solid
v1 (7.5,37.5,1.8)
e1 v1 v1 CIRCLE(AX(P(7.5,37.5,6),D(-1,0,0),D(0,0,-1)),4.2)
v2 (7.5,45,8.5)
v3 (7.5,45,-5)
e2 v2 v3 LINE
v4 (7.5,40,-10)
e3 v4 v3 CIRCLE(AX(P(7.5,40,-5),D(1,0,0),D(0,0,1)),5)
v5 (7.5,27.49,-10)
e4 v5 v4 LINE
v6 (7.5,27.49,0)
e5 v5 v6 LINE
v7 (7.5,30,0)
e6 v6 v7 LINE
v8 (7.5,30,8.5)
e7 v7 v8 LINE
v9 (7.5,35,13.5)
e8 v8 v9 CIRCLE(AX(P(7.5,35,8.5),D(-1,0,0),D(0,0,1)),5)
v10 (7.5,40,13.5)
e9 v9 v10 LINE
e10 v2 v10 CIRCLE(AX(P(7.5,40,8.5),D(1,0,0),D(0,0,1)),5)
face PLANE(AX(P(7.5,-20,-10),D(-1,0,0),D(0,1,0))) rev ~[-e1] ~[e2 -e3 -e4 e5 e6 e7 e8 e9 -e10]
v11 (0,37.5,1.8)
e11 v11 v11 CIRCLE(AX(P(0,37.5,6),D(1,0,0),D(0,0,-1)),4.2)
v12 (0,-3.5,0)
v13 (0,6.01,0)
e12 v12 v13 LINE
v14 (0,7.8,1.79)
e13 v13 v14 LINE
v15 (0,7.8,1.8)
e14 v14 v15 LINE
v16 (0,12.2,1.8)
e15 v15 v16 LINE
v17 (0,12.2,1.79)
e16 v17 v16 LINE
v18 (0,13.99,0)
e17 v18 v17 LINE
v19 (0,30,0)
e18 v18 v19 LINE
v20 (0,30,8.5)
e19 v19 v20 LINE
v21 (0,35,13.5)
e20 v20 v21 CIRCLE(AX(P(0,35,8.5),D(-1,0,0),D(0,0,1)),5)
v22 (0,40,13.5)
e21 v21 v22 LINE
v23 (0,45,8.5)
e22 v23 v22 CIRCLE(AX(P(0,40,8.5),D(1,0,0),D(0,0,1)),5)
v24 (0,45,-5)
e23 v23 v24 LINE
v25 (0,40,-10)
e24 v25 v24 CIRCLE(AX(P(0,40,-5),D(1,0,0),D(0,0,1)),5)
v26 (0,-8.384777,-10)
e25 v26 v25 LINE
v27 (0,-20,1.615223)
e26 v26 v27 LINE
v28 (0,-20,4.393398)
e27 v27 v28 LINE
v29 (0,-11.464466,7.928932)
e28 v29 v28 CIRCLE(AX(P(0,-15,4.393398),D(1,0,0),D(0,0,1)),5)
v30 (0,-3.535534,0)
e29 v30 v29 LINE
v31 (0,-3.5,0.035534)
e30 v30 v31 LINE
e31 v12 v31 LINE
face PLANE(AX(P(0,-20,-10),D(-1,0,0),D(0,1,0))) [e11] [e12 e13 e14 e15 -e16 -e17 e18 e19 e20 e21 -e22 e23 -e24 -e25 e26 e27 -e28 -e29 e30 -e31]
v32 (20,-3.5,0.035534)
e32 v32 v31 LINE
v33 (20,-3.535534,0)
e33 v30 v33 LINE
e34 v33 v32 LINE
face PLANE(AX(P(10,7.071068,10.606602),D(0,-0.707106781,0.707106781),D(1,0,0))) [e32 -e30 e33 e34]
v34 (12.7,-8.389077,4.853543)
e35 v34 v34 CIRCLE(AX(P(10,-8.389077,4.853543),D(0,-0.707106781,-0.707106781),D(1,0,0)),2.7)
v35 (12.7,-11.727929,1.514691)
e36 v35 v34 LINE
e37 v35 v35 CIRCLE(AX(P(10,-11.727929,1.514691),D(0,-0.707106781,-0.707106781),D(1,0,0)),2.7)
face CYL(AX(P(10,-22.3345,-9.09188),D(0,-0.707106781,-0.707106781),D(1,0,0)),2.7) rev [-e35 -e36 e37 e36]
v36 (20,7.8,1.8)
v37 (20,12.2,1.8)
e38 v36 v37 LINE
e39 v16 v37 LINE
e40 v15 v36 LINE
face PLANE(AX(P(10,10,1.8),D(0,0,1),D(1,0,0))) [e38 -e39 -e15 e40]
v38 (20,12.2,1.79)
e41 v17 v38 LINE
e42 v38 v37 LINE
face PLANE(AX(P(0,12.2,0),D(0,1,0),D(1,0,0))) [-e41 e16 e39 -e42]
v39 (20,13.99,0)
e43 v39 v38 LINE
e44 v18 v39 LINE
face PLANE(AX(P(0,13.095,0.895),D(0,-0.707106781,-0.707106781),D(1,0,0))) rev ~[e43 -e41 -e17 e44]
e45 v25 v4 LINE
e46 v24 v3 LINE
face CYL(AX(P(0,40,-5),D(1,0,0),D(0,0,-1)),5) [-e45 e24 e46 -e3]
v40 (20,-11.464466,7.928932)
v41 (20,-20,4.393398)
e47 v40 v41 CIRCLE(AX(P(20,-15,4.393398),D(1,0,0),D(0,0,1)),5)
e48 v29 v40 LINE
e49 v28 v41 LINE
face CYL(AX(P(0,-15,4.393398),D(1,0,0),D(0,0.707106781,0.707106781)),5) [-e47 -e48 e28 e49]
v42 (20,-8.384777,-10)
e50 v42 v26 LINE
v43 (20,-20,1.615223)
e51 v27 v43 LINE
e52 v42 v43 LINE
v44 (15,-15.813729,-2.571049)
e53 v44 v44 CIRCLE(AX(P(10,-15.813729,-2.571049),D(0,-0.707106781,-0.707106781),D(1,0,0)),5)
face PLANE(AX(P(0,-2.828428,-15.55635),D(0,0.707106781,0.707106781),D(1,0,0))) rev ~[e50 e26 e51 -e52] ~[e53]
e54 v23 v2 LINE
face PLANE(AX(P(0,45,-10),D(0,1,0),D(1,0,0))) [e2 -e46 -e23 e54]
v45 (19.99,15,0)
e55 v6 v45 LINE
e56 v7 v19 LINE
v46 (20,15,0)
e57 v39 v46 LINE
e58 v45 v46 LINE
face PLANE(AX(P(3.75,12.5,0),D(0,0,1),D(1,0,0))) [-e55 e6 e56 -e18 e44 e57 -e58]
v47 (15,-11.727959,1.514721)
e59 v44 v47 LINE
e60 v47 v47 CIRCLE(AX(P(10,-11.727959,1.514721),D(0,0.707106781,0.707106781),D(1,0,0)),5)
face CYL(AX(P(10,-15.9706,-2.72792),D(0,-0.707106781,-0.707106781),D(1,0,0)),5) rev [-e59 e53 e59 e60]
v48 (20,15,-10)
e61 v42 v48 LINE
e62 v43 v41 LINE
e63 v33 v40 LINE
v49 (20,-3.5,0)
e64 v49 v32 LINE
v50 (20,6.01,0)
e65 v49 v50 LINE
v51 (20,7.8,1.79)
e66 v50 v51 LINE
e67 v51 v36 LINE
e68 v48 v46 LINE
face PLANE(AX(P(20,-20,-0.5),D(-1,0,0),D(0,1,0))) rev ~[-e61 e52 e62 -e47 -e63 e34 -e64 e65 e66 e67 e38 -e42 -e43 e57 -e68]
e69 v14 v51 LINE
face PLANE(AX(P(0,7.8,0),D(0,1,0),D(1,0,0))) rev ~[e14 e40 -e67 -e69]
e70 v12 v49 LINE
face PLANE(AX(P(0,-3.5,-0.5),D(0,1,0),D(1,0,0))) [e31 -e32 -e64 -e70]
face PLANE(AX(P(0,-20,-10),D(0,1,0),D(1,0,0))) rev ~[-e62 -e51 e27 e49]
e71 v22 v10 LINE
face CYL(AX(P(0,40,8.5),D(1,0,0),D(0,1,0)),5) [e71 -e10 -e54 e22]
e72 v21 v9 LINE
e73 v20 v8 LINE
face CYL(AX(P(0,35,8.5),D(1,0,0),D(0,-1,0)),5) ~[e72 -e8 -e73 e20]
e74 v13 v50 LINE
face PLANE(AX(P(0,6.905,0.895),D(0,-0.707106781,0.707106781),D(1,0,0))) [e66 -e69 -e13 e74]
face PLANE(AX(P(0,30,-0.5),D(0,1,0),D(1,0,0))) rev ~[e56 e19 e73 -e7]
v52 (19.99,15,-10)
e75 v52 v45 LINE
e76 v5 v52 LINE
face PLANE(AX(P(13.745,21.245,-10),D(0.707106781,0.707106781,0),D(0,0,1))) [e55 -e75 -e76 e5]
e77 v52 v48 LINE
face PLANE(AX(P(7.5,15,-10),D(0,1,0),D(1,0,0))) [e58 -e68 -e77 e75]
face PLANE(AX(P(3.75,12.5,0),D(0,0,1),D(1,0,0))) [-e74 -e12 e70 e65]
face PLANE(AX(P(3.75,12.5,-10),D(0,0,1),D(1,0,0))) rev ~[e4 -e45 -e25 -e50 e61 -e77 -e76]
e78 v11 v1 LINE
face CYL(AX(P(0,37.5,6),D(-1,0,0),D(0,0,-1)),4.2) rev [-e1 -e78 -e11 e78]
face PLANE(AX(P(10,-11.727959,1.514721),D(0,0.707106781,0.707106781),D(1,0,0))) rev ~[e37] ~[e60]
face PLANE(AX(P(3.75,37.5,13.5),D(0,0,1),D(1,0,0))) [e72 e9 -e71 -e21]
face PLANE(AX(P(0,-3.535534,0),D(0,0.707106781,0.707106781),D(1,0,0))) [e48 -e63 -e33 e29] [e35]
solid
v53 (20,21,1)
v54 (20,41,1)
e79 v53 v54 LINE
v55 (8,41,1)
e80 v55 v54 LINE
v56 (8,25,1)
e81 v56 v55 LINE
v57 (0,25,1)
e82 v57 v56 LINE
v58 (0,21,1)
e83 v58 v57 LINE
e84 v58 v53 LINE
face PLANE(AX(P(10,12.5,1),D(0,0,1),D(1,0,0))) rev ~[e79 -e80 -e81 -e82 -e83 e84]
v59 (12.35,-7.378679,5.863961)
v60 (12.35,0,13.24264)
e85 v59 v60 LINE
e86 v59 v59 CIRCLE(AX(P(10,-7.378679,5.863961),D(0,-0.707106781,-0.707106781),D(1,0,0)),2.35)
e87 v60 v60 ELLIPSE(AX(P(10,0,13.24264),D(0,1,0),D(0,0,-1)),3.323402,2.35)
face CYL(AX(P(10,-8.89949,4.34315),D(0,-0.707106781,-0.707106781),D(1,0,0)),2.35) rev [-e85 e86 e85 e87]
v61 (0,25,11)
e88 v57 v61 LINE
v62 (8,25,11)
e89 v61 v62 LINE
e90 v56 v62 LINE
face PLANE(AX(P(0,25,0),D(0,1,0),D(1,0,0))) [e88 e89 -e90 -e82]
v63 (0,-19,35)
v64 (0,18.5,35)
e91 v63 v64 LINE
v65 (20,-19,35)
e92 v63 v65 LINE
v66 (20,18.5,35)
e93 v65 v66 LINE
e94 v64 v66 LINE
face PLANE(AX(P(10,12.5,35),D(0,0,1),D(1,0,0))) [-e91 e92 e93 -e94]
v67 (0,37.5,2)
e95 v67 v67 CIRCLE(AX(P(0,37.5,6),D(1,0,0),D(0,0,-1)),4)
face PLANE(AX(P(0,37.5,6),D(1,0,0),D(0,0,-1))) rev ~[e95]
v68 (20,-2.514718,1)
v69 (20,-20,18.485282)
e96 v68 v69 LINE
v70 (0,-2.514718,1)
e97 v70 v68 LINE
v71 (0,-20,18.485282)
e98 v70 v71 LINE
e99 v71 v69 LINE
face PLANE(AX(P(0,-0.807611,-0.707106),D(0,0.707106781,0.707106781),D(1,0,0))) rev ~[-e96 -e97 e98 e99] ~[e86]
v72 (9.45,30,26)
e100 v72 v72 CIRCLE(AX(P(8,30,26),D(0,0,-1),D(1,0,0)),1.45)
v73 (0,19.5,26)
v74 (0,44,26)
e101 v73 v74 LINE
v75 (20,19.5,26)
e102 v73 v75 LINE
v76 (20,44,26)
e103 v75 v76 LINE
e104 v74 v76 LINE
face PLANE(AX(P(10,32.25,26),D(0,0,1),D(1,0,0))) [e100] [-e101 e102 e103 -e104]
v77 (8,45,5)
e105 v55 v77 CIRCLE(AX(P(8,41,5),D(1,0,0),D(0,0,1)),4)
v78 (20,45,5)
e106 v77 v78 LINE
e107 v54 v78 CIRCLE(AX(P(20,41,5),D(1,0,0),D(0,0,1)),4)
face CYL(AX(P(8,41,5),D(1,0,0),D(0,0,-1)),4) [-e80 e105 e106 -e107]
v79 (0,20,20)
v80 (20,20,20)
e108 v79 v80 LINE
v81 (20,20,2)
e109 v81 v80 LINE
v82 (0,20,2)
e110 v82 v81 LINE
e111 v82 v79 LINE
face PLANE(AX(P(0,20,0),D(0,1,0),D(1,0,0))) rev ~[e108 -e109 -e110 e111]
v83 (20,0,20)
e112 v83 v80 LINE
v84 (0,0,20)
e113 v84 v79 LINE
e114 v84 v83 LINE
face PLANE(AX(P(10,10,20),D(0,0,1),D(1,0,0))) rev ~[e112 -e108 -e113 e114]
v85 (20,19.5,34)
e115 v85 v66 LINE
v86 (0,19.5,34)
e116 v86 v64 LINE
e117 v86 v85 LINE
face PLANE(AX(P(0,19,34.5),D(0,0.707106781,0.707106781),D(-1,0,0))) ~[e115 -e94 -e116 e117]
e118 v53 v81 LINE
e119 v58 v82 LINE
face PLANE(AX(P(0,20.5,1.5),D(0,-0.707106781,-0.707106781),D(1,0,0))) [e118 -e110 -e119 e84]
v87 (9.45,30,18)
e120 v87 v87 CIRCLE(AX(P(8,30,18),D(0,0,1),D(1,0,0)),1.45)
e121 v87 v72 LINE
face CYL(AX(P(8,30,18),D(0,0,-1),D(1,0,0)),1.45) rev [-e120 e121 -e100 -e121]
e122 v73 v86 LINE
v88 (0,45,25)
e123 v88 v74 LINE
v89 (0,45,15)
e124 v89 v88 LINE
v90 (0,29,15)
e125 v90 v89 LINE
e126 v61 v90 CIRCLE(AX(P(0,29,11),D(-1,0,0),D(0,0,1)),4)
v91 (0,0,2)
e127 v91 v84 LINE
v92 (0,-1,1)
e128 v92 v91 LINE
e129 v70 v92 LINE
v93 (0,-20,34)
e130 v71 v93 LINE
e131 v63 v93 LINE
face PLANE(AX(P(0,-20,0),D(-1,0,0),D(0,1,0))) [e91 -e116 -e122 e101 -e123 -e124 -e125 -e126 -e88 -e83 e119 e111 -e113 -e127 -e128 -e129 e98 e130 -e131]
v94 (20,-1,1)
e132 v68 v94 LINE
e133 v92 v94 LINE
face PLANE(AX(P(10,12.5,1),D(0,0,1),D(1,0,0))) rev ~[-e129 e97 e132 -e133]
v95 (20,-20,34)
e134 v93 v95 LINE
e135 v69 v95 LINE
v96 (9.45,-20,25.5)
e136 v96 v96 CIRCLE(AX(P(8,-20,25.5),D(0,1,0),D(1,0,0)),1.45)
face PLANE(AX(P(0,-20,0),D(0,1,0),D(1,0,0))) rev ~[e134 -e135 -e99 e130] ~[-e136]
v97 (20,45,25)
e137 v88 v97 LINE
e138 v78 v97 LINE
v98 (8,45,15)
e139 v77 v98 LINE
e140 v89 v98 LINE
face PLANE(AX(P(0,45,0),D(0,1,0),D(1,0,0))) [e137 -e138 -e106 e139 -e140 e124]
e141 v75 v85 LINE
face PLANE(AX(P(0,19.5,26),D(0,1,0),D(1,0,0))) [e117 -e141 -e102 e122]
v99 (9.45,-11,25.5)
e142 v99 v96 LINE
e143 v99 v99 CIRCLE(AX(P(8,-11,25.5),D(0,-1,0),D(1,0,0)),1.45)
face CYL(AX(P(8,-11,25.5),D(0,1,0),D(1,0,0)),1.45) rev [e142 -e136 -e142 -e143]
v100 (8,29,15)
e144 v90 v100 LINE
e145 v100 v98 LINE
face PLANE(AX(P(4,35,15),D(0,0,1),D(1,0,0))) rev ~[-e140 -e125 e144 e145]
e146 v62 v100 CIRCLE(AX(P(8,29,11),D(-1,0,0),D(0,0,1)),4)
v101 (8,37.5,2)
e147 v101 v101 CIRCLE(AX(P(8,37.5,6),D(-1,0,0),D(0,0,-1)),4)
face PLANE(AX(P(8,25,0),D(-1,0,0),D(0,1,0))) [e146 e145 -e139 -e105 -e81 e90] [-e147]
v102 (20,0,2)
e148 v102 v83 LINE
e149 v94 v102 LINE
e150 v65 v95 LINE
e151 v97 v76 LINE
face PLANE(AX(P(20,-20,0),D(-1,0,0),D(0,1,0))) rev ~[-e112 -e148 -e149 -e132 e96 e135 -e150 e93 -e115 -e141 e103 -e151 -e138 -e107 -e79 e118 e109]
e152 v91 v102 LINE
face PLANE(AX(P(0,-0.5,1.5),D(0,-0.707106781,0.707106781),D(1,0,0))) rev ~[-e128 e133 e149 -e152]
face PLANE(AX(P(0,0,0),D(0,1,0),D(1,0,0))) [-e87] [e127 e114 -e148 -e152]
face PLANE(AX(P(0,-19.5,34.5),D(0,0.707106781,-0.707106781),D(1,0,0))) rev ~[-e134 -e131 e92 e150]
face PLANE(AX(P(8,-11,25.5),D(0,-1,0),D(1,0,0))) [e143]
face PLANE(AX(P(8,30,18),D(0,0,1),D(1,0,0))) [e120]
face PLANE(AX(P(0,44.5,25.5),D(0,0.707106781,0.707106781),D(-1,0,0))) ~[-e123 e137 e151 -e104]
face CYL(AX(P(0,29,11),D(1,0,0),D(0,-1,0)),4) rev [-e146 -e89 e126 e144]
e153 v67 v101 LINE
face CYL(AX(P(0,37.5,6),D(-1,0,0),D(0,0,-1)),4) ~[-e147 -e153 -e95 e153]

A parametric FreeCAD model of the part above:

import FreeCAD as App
import Part
import Sketcher
from FreeCAD import Vector
Q = App.Units.Quantity


def edges_at(feature, points):
    """Names of the edges that pass closest to the given points."""
    edges = feature.Shape.Edges
    near = lambda p: min(range(len(edges)), key=lambda i: edges[i].distToShape(Part.Vertex(*p))[0])
    return sorted({f"Edge{near(p) + 1}" for p in points})

doc = App.newDocument("Part")
body = doc.addObject("PartDesign::Body", "Body")

sketch1 = body.newObject("Sketcher::SketchObject", "Sketch")
sketch1.AttachmentSupport = (doc.getObject("XY_Plane"), [""])
sketch1.MapMode = "FlatFace"
sketch1.addGeometry([
    Part.LineSegment(Vector(0, 45, 0), Vector(0, -20, 0)),
    Part.LineSegment(Vector(0, -20, 0), Vector(20, -20, 0)),
    Part.LineSegment(Vector(20, -20, 0), Vector(20, 45, 0)),
    Part.LineSegment(Vector(20, 45, 0), Vector(0, 45, 0)),
], False)
sketch1.addConstraint([
    Sketcher.Constraint("Coincident", 0, 2, 1, 1),
    Sketcher.Constraint("Coincident", 1, 2, 2, 1),
    Sketcher.Constraint("Coincident", 2, 2, 3, 1),
    Sketcher.Constraint("Coincident", 3, 2, 0, 1),
    Sketcher.Constraint("Vertical", 0),
    Sketcher.Constraint("Horizontal", 1),
    Sketcher.Constraint("Vertical", 2),
    Sketcher.Constraint("Horizontal", 3),
    Sketcher.Constraint("PointOnObject", 0, 2, -2),
    Sketcher.Constraint("DistanceX", 1, 1, 1, 2, Q("20 mm")),
    Sketcher.Constraint("DistanceY", 0, 2, 0, 1, Q("65 mm")),
    Sketcher.Constraint("DistanceY", 0, 2, -1, 1, Q("20 mm")),
])
pad1 = body.newObject("PartDesign::Pad", "Pad")
pad1.Profile = sketch1
pad1.Length = 1
body2 = doc.addObject("PartDesign::Body", "Body001")

sketch2 = body2.newObject("Sketcher::SketchObject", "Sketch001")
sketch2.AttachmentSupport = (doc.getObject("YZ_Plane001"), [""])
sketch2.MapMode = "FlatFace"
sketch2.addGeometry(Part.Circle(Vector(37.5, 6, 0), Vector(0, 0, 1), 4), False)
sketch2.addConstraint([
    Sketcher.Constraint("Diameter", 0, Q("8 mm")),
    Sketcher.Constraint("DistanceY", -1, 1, 0, 3, Q("6 mm")),
    Sketcher.Constraint("DistanceX", -1, 1, 0, 3, Q("37.5 mm")),
])
pad2 = body2.newObject("PartDesign::Pad", "Pad001")
pad2.Profile = sketch2
pad2.Length = 10
body3 = doc.addObject("PartDesign::Body", "Body002")

sketch3 = body3.newObject("Sketcher::SketchObject", "Sketch002")
sketch3.AttachmentSupport = (doc.getObject("XZ_Plane002"), [""])
sketch3.MapMode = "FlatFace"
sketch3.AttachmentOffset = App.Placement(Vector(0, 0, 11), App.Rotation())
sketch3.addGeometry(Part.Circle(Vector(8, 25.5, 0), Vector(0, 0, 1), 1.4), False)
sketch3.addConstraint([
    Sketcher.Constraint("Diameter", 0, Q("2.9 mm")),
    Sketcher.Constraint("DistanceX", -1, 1, 0, 3, Q("8 mm")),
    Sketcher.Constraint("DistanceY", -1, 1, 0, 3, Q("25.5 mm")),
])
pad3 = body3.newObject("PartDesign::Pad", "Pad002")
pad3.Profile = sketch3
pad3.Length = 10
body4 = doc.addObject("PartDesign::Body", "Body003")

sketch4 = body4.newObject("Sketcher::SketchObject", "Sketch003")
sketch4.AttachmentSupport = (doc.getObject("XY_Plane003"), [""])
sketch4.MapMode = "FlatFace"
sketch4.addGeometry(Part.Circle(Vector(0, 0, 0), Vector(0, 0, 1), 2.4), False)
sketch4.addConstraint([
    Sketcher.Constraint("Coincident", 0, 3, -1, 1),
    Sketcher.Constraint("Diameter", 0, Q("4.7 mm")),
])
pad4 = body4.newObject("PartDesign::Pad", "Pad003")
pad4.Profile = sketch4
pad4.Length = 15
body5 = doc.addObject("PartDesign::Body", "Body004")
doc.recompute()

body4.Placement = App.Placement(Vector(10, -8.89949, 4.34315), App.Rotation(Vector(-1, 0, 0), 45))
boolean = body5.newObject("PartDesign::Boolean", "Boolean")
boolean.Type = "Fuse"
boolean.addObjects([body4])
body6 = doc.addObject("PartDesign::Body", "Body005")
body6.AllowCompound = True

sketch5 = body6.newObject("Sketcher::SketchObject", "Sketch004")
sketch5.AttachmentSupport = (doc.getObject("XY_Plane005"), [""])
sketch5.MapMode = "FlatFace"
sketch5.AttachmentOffset = App.Placement(Vector(0, 0, 18), App.Rotation())
sketch5.addGeometry(Part.Circle(Vector(8, 30, 0), Vector(0, 0, 1), 1.4), False)
sketch5.addConstraint([
    Sketcher.Constraint("Diameter", 0, Q("2.9 mm")),
    Sketcher.Constraint("DistanceX", -1, 1, 0, 3, Q("8 mm")),
    Sketcher.Constraint("DistanceY", -1, 1, 0, 3, Q("30 mm")),
])
pad5 = body6.newObject("PartDesign::Pad", "Pad004")
pad5.Profile = sketch5
pad5.Length = 10
doc.recompute()

boolean2 = body6.newObject("PartDesign::Boolean", "Boolean001")
boolean2.Type = "Fuse"
boolean2.addObjects([body3])
doc.recompute()

boolean3 = body6.newObject("PartDesign::Boolean", "Boolean002")
boolean3.Type = "Fuse"
boolean3.addObjects([body5])
body7 = doc.addObject("PartDesign::Body", "Body006")

sketch6 = body7.newObject("Sketcher::SketchObject", "Sketch005")
sketch6.AttachmentSupport = (doc.getObject("XY_Plane006"), [""])
sketch6.MapMode = "FlatFace"
sketch6.addGeometry([
    Part.LineSegment(Vector(0, 45, 0), Vector(0, 25, 0)),
    Part.LineSegment(Vector(0, 25, 0), Vector(8, 25, 0)),
    Part.LineSegment(Vector(8, 25, 0), Vector(8, 45, 0)),
    Part.LineSegment(Vector(8, 45, 0), Vector(0, 45, 0)),
], False)
sketch6.addConstraint([
    Sketcher.Constraint("Coincident", 0, 2, 1, 1),
    Sketcher.Constraint("Coincident", 1, 2, 2, 1),
    Sketcher.Constraint("Coincident", 2, 2, 3, 1),
    Sketcher.Constraint("Coincident", 3, 2, 0, 1),
    Sketcher.Constraint("Vertical", 0),
    Sketcher.Constraint("Horizontal", 1),
    Sketcher.Constraint("Vertical", 2),
    Sketcher.Constraint("Horizontal", 3),
    Sketcher.Constraint("PointOnObject", 0, 2, -2),
    Sketcher.Constraint("DistanceX", 1, 1, 1, 2, Q("8 mm")),
    Sketcher.Constraint("DistanceY", 0, 2, 0, 1, Q("20 mm")),
    Sketcher.Constraint("DistanceY", -1, 1, 0, 2, Q("25 mm")),
])
pad6 = body7.newObject("PartDesign::Pad", "Pad005")
pad6.Profile = sketch6
pad6.Length = 15
body8 = doc.addObject("PartDesign::Body", "Body007")

sketch7 = body8.newObject("Sketcher::SketchObject", "Sketch006")
sketch7.AttachmentSupport = (doc.getObject("XY_Plane007"), [""])
sketch7.MapMode = "FlatFace"
sketch7.AttachmentOffset = App.Placement(Vector(0, 0, 26), App.Rotation())
sketch7.addGeometry([
    Part.LineSegment(Vector(0, 45, 0), Vector(0, 20, 0)),
    Part.LineSegment(Vector(0, 20, 0), Vector(20, 20, 0)),
    Part.LineSegment(Vector(20, 20, 0), Vector(20, 45, 0)),
    Part.LineSegment(Vector(20, 45, 0), Vector(0, 45, 0)),
], False)
sketch7.addConstraint([
    Sketcher.Constraint("Coincident", 0, 2, 1, 1),
    Sketcher.Constraint("Coincident", 1, 2, 2, 1),
    Sketcher.Constraint("Coincident", 2, 2, 3, 1),
    Sketcher.Constraint("Coincident", 3, 2, 0, 1),
    Sketcher.Constraint("Vertical", 0),
    Sketcher.Constraint("Horizontal", 1),
    Sketcher.Constraint("Vertical", 2),
    Sketcher.Constraint("Horizontal", 3),
    Sketcher.Constraint("PointOnObject", 0, 2, -2),
    Sketcher.Constraint("DistanceX", 1, 1, 1, 2, Q("20 mm")),
    Sketcher.Constraint("DistanceY", 0, 2, 0, 1, Q("25.5 mm")),
    Sketcher.Constraint("DistanceY", -1, 1, 2, 2, Q("45 mm")),
])
pad7 = body8.newObject("PartDesign::Pad", "Pad006")
pad7.Profile = sketch7
pad7.Length = 9
body9 = doc.addObject("PartDesign::Body", "Body008")

sketch8 = body9.newObject("Sketcher::SketchObject", "Sketch007")
sketch8.AttachmentSupport = (doc.getObject("XY_Plane008"), [""])
sketch8.MapMode = "FlatFace"
sketch8.addGeometry([
    Part.LineSegment(Vector(0, 25, 0), Vector(0, 0, 0)),
    Part.LineSegment(Vector(0, 0, 0), Vector(20, 0, 0)),
    Part.LineSegment(Vector(20, 0, 0), Vector(20, 25, 0)),
    Part.LineSegment(Vector(20, 25, 0), Vector(0, 25, 0)),
], False)
sketch8.addConstraint([
    Sketcher.Constraint("Coincident", 0, 2, 1, 1),
    Sketcher.Constraint("Coincident", 1, 2, 2, 1),
    Sketcher.Constraint("Coincident", 2, 2, 3, 1),
    Sketcher.Constraint("Coincident", 3, 2, 0, 1),
    Sketcher.Constraint("Vertical", 0),
    Sketcher.Constraint("Horizontal", 1),
    Sketcher.Constraint("Vertical", 2),
    Sketcher.Constraint("Horizontal", 3),
    Sketcher.Constraint("Coincident", 0, 2, -1, 1),
    Sketcher.Constraint("DistanceX", 1, 1, 1, 2, Q("20 mm")),
    Sketcher.Constraint("DistanceY", 0, 2, 0, 1, Q("25 mm")),
])
pad8 = body9.newObject("PartDesign::Pad", "Pad007")
pad8.Profile = sketch8
pad8.Length = 50
body10 = doc.addObject("PartDesign::Body", "Body009")
doc.recompute()

body9.Placement = App.Placement(Vector(0, -18.485281, -18.384776), App.Rotation(Vector(1, 0, 0), 45))
boolean4 = body10.newObject("PartDesign::Boolean", "Boolean003")
boolean4.Type = "Fuse"
boolean4.addObjects([body9])
body11 = doc.addObject("PartDesign::Body", "Body010")
body11.AllowCompound = True

sketch9 = body11.newObject("Sketcher::SketchObject", "Sketch008")
sketch9.AttachmentSupport = (doc.getObject("XY_Plane010"), [""])
sketch9.MapMode = "FlatFace"
sketch9.addGeometry([
    Part.LineSegment(Vector(0, 20, 0), Vector(0, 0, 0)),
    Part.LineSegment(Vector(0, 0, 0), Vector(20, 0, 0)),
    Part.LineSegment(Vector(20, 0, 0), Vector(20, 20, 0)),
    Part.LineSegment(Vector(20, 20, 0), Vector(0, 20, 0)),
], False)
sketch9.addConstraint([
    Sketcher.Constraint("Coincident", 0, 2, 1, 1),
    Sketcher.Constraint("Coincident", 1, 2, 2, 1),
    Sketcher.Constraint("Coincident", 2, 2, 3, 1),
    Sketcher.Constraint("Coincident", 3, 2, 0, 1),
    Sketcher.Constraint("Vertical", 0),
    Sketcher.Constraint("Horizontal", 1),
    Sketcher.Constraint("Vertical", 2),
    Sketcher.Constraint("Horizontal", 3),
    Sketcher.Constraint("Coincident", 0, 2, -1, 1),
    Sketcher.Constraint("Equal", 3, 0),
    Sketcher.Constraint("DistanceX", 1, 1, 1, 2, Q("20 mm")),
])
pad9 = body11.newObject("PartDesign::Pad", "Pad008")
pad9.Profile = sketch9
pad9.Length = 20
doc.recompute()

boolean5 = body11.newObject("PartDesign::Boolean", "Boolean004")
boolean5.Type = "Fuse"
boolean5.addObjects([body8])
doc.recompute()

boolean6 = body11.newObject("PartDesign::Boolean", "Boolean005")
boolean6.Type = "Fuse"
boolean6.addObjects([body10])
body12 = doc.addObject("PartDesign::Body", "Body011")

sketch10 = body12.newObject("Sketcher::SketchObject", "Sketch009")
sketch10.AttachmentSupport = (doc.getObject("XY_Plane011"), [""])
sketch10.MapMode = "FlatFace"
sketch10.addGeometry([
    Part.LineSegment(Vector(0, 45, 0), Vector(0, -20, 0)),
    Part.LineSegment(Vector(0, -20, 0), Vector(20, -20, 0)),
    Part.LineSegment(Vector(20, -20, 0), Vector(20, 45, 0)),
    Part.LineSegment(Vector(20, 45, 0), Vector(0, 45, 0)),
], False)
sketch10.addConstraint([
    Sketcher.Constraint("Coincident", 0, 2, 1, 1),
    Sketcher.Constraint("Coincident", 1, 2, 2, 1),
    Sketcher.Constraint("Coincident", 2, 2, 3, 1),
    Sketcher.Constraint("Coincident", 3, 2, 0, 1),
    Sketcher.Constraint("Vertical", 0),
    Sketcher.Constraint("Horizontal", 1),
    Sketcher.Constraint("Vertical", 2),
    Sketcher.Constraint("Horizontal", 3),
    Sketcher.Constraint("PointOnObject", 0, 2, -2),
    Sketcher.Constraint("DistanceX", 1, 1, 1, 2, Q("20 mm")),
    Sketcher.Constraint("DistanceY", 0, 2, 0, 1, Q("65 mm")),
    Sketcher.Constraint("DistanceY", 0, 2, -1, 1, Q("20 mm")),
])
pad10 = body12.newObject("PartDesign::Pad", "Pad009")
pad10.Profile = sketch10
pad10.Length = 35
doc.recompute()

boolean7 = body12.newObject("PartDesign::Boolean", "Boolean006")
boolean7.Type = "Cut"
boolean7.addObjects([body11])
doc.recompute()

boolean8 = body12.newObject("PartDesign::Boolean", "Boolean007")
boolean8.Type = "Cut"
boolean8.addObjects([body7])
doc.recompute()

boolean9 = body12.newObject("PartDesign::Boolean", "Boolean008")
boolean9.Type = "Cut"
boolean9.addObjects([body6])
doc.recompute()

boolean10 = body12.newObject("PartDesign::Boolean", "Boolean009")
boolean10.Type = "Fuse"
boolean10.addObjects([body2])
doc.recompute()

boolean11 = body12.newObject("PartDesign::Boolean", "Boolean010")
boolean11.Type = "Cut"
boolean11.addObjects([body])
doc.recompute()

chamfer = body12.newObject("PartDesign::Chamfer", "Chamfer")
chamfer.Base = (boolean11, edges_at(boolean11, [
    (10, 45, 26),
    (10, 20, 1),
    (10, -20, 35),
    (10, 19.5, 35),
    (10, 0, 1),
]))
chamfer.Size = 1
doc.recompute()

fillet = body12.newObject("PartDesign::Fillet", "Fillet")
fillet.Base = (chamfer, edges_at(chamfer, [(14, 45, 1), (4, 25, 15)]))
fillet.Radius = 4
body13 = doc.addObject("PartDesign::Body", "Body012")

sketch11 = body13.newObject("Sketcher::SketchObject", "Sketch010")
sketch11.AttachmentSupport = (doc.getObject("XY_Plane012"), [""])
sketch11.MapMode = "FlatFace"
sketch11.addGeometry([
    Part.LineSegment(Vector(0, 12.2, 0), Vector(0, 7.8, 0)),
    Part.LineSegment(Vector(0, 7.8, 0), Vector(20, 7.8, 0)),
    Part.LineSegment(Vector(20, 7.8, 0), Vector(20, 12.2, 0)),
    Part.LineSegment(Vector(20, 12.2, 0), Vector(0, 12.2, 0)),
], False)
sketch11.addConstraint([
    Sketcher.Constraint("Coincident", 0, 2, 1, 1),
    Sketcher.Constraint("Coincident", 1, 2, 2, 1),
    Sketcher.Constraint("Coincident", 2, 2, 3, 1),
    Sketcher.Constraint("Coincident", 3, 2, 0, 1),
    Sketcher.Constraint("Vertical", 0),
    Sketcher.Constraint("Horizontal", 1),
    Sketcher.Constraint("Vertical", 2),
    Sketcher.Constraint("Horizontal", 3),
    Sketcher.Constraint("PointOnObject", 0, 2, -2),
    Sketcher.Constraint("DistanceX", 1, 1, 1, 2, Q("20 mm")),
    Sketcher.Constraint("DistanceY", 0, 2, 0, 1, Q("4.4 mm")),
    Sketcher.Constraint("DistanceY", -1, 1, 0, 2, Q("7.8 mm")),
])
pad11 = body13.newObject("PartDesign::Pad", "Pad010")
pad11.Profile = sketch11
pad11.Length = 1.8
body14 = doc.addObject("PartDesign::Body", "Body013")

sketch12 = body14.newObject("Sketcher::SketchObject", "Sketch011")
sketch12.AttachmentSupport = (doc.getObject("XY_Plane013"), [""])
sketch12.MapMode = "FlatFace"
sketch12.addGeometry(Part.Circle(Vector(0, 0, 0), Vector(0, 0, 1), 5), False)
sketch12.addConstraint([
    Sketcher.Constraint("Coincident", 0, 3, -1, 1),
    Sketcher.Constraint("Diameter", 0, Q("10 mm")),
])
pad12 = body14.newObject("PartDesign::Pad", "Pad011")
pad12.Profile = sketch12
pad12.Length = 6
body15 = doc.addObject("PartDesign::Body", "Body014")
doc.recompute()

body14.Placement = App.Placement(Vector(10, -15.9706, -2.72792), App.Rotation(Vector(-1, 0, 0), 45))
boolean12 = body15.newObject("PartDesign::Boolean", "Boolean011")
boolean12.Type = "Fuse"
boolean12.addObjects([body14])
body16 = doc.addObject("PartDesign::Body", "Body015")

sketch13 = body16.newObject("Sketcher::SketchObject", "Sketch012")
sketch13.AttachmentSupport = (doc.getObject("XY_Plane015"), [""])
sketch13.MapMode = "FlatFace"
sketch13.addGeometry([
    Part.LineSegment(Vector(0, 30, 0), Vector(0, 0, 0)),
    Part.LineSegment(Vector(0, 0, 0), Vector(20, 0, 0)),
    Part.LineSegment(Vector(20, 0, 0), Vector(20, 30, 0)),
    Part.LineSegment(Vector(20, 30, 0), Vector(0, 30, 0)),
], False)
sketch13.addConstraint([
    Sketcher.Constraint("Coincident", 0, 2, 1, 1),
    Sketcher.Constraint("Coincident", 1, 2, 2, 1),
    Sketcher.Constraint("Coincident", 2, 2, 3, 1),
    Sketcher.Constraint("Coincident", 3, 2, 0, 1),
    Sketcher.Constraint("Vertical", 0),
    Sketcher.Constraint("Horizontal", 1),
    Sketcher.Constraint("Vertical", 2),
    Sketcher.Constraint("Horizontal", 3),
    Sketcher.Constraint("Coincident", 0, 2, -1, 1),
    Sketcher.Constraint("DistanceX", 1, 1, 1, 2, Q("20 mm")),
    Sketcher.Constraint("DistanceY", 0, 2, 0, 1, Q("30 mm")),
])
pad13 = body16.newObject("PartDesign::Pad", "Pad012")
pad13.Profile = sketch13
pad13.Length = 50
body17 = doc.addObject("PartDesign::Body", "Body016")
doc.recompute()

body16.Placement = App.Placement(Vector(0, -24.041631, -36.769553), App.Rotation(Vector(1, 0, 0), 45))
boolean13 = body17.newObject("PartDesign::Boolean", "Boolean012")
boolean13.Type = "Fuse"
boolean13.addObjects([body16])
body18 = doc.addObject("PartDesign::Body", "Body017")

sketch14 = body18.newObject("Sketcher::SketchObject", "Sketch013")
sketch14.AttachmentSupport = (doc.getObject("XY_Plane017"), [""])
sketch14.MapMode = "FlatFace"
sketch14.addGeometry(Part.Circle(Vector(0, 0, 0), Vector(0, 0, 1), 2.7), False)
sketch14.addConstraint([
    Sketcher.Constraint("Coincident", 0, 3, -1, 1),
    Sketcher.Constraint("Diameter", 0, Q("5.4 mm")),
])
pad14 = body18.newObject("PartDesign::Pad", "Pad013")
pad14.Profile = sketch14
pad14.Length = 20
body19 = doc.addObject("PartDesign::Body", "Body018")
doc.recompute()

body18.Placement = App.Placement(Vector(10, -22.3345, -9.09188), App.Rotation(Vector(-1, 0, 0), 45))
boolean14 = body19.newObject("PartDesign::Boolean", "Boolean013")
boolean14.Type = "Fuse"
boolean14.addObjects([body18])
body20 = doc.addObject("PartDesign::Body", "Body019")

sketch15 = body20.newObject("Sketcher::SketchObject", "Sketch014")
sketch15.AttachmentSupport = (doc.getObject("XY_Plane019"), [""])
sketch15.MapMode = "FlatFace"
sketch15.AttachmentOffset = App.Placement(Vector(0, 0, -0.5), App.Rotation())
sketch15.addGeometry([
    Part.LineSegment(Vector(0, 6, 0), Vector(0, -4, 0)),
    Part.LineSegment(Vector(0, -4, 0), Vector(20, -4, 0)),
    Part.LineSegment(Vector(20, -4, 0), Vector(20, 6, 0)),
    Part.LineSegment(Vector(20, 6, 0), Vector(0, 6, 0)),
], False)
sketch15.addConstraint([
    Sketcher.Constraint("Coincident", 0, 2, 1, 1),
    Sketcher.Constraint("Coincident", 1, 2, 2, 1),
    Sketcher.Constraint("Coincident", 2, 2, 3, 1),
    Sketcher.Constraint("Coincident", 3, 2, 0, 1),
    Sketcher.Constraint("Vertical", 0),
    Sketcher.Constraint("Horizontal", 1),
    Sketcher.Constraint("Vertical", 2),
    Sketcher.Constraint("Horizontal", 3),
    Sketcher.Constraint("PointOnObject", 0, 2, -2),
    Sketcher.Constraint("DistanceX", 1, 1, 1, 2, Q("20 mm")),
    Sketcher.Constraint("DistanceY", 0, 2, 0, 1, Q("10 mm")),
    Sketcher.Constraint("DistanceY", 0, 2, -1, 1, Q("3.5 mm")),
])
pad15 = body20.newObject("PartDesign::Pad", "Pad014")
pad15.Profile = sketch15
pad15.Length = 10
body21 = doc.addObject("PartDesign::Body", "Body020")

sketch16 = body21.newObject("Sketcher::SketchObject", "Sketch015")
sketch16.AttachmentSupport = (doc.getObject("XY_Plane020"), [""])
sketch16.MapMode = "FlatFace"
sketch16.addGeometry([
    Part.LineSegment(Vector(0, 30, 0), Vector(0, 0, 0)),
    Part.LineSegment(Vector(0, 0, 0), Vector(20, 0, 0)),
    Part.LineSegment(Vector(20, 0, 0), Vector(20, 30, 0)),
    Part.LineSegment(Vector(20, 30, 0), Vector(0, 30, 0)),
], False)
sketch16.addConstraint([
    Sketcher.Constraint("Coincident", 0, 2, 1, 1),
    Sketcher.Constraint("Coincident", 1, 2, 2, 1),
    Sketcher.Constraint("Coincident", 2, 2, 3, 1),
    Sketcher.Constraint("Coincident", 3, 2, 0, 1),
    Sketcher.Constraint("Vertical", 0),
    Sketcher.Constraint("Horizontal", 1),
    Sketcher.Constraint("Vertical", 2),
    Sketcher.Constraint("Horizontal", 3),
    Sketcher.Constraint("Coincident", 0, 2, -1, 1),
    Sketcher.Constraint("DistanceX", 1, 1, 1, 2, Q("20 mm")),
    Sketcher.Constraint("DistanceY", 0, 2, 0, 1, Q("30 mm")),
])
pad16 = body21.newObject("PartDesign::Pad", "Pad015")
pad16.Profile = sketch16
pad16.Length = 50
body22 = doc.addObject("PartDesign::Body", "Body021")
doc.recompute()

body21.Placement = App.Placement(Vector(0, -3.535534, 0), App.Rotation(Vector(1, 0, 0), 45))
boolean15 = body22.newObject("PartDesign::Boolean", "Boolean014")
boolean15.Type = "Fuse"
boolean15.addObjects([body21])
body23 = doc.addObject("PartDesign::Body", "Body022")

sketch17 = body23.newObject("Sketcher::SketchObject", "Sketch016")
sketch17.AttachmentSupport = (doc.getObject("XY_Plane022"), [""])
sketch17.MapMode = "FlatFace"
sketch17.AttachmentOffset = App.Placement(Vector(0, 0, -0.5), App.Rotation())
sketch17.addGeometry([
    Part.LineSegment(Vector(0, 0, 0), Vector(0, -20, 0)),
    Part.LineSegment(Vector(0, -20, 0), Vector(20, -20, 0)),
    Part.LineSegment(Vector(20, -20, 0), Vector(20, 0, 0)),
    Part.LineSegment(Vector(20, 0, 0), Vector(0, 0, 0)),
], False)
sketch17.addConstraint([
    Sketcher.Constraint("Coincident", 0, 2, 1, 1),
    Sketcher.Constraint("Coincident", 1, 2, 2, 1),
    Sketcher.Constraint("Coincident", 2, 2, 3, 1),
    Sketcher.Constraint("Coincident", 3, 2, 0, 1),
    Sketcher.Constraint("Vertical", 0),
    Sketcher.Constraint("Horizontal", 1),
    Sketcher.Constraint("Vertical", 2),
    Sketcher.Constraint("Horizontal", 3),
    Sketcher.Constraint("Coincident", 3, 2, -1, 1),
    Sketcher.Constraint("Equal", 3, 0),
    Sketcher.Constraint("DistanceX", 1, 1, 1, 2, Q("20 mm")),
])
pad17 = body23.newObject("PartDesign::Pad", "Pad016")
pad17.Profile = sketch17
pad17.Length = 30
doc.recompute()

boolean16 = body23.newObject("PartDesign::Boolean", "Boolean015")
boolean16.Type = "Cut"
boolean16.addObjects([body22])
doc.recompute()

boolean17 = body23.newObject("PartDesign::Boolean", "Boolean016")
boolean17.Type = "Cut"
boolean17.addObjects([body20])
body24 = doc.addObject("PartDesign::Body", "Body023")

sketch18 = body24.newObject("Sketcher::SketchObject", "Sketch017")
sketch18.AttachmentSupport = (doc.getObject("YZ_Plane023"), [""])
sketch18.MapMode = "FlatFace"
sketch18.addGeometry(Part.Circle(Vector(37.5, 6, 0), Vector(0, 0, 1), 4.2), False)
sketch18.addConstraint([
    Sketcher.Constraint("Diameter", 0, Q("8.4 mm")),
    Sketcher.Constraint("DistanceY", -1, 1, 0, 3, Q("6 mm")),
    Sketcher.Constraint("DistanceX", -1, 1, 0, 3, Q("37.5 mm")),
])
pad18 = body24.newObject("PartDesign::Pad", "Pad017")
pad18.Profile = sketch18
pad18.Length = 10
body25 = doc.addObject("PartDesign::Body", "Body024")

sketch19 = body25.newObject("Sketcher::SketchObject", "Sketch018")
sketch19.AttachmentSupport = (doc.getObject("XY_Plane024"), [""])
sketch19.MapMode = "FlatFace"
sketch19.AttachmentOffset = App.Placement(Vector(0, 0, -0.5), App.Rotation())
sketch19.addGeometry([
    Part.LineSegment(Vector(0, 45, 0), Vector(0, 30, 0)),
    Part.LineSegment(Vector(0, 30, 0), Vector(8, 30, 0)),
    Part.LineSegment(Vector(8, 30, 0), Vector(8, 45, 0)),
    Part.LineSegment(Vector(8, 45, 0), Vector(0, 45, 0)),
], False)
sketch19.addConstraint([
    Sketcher.Constraint("Coincident", 0, 2, 1, 1),
    Sketcher.Constraint("Coincident", 1, 2, 2, 1),
    Sketcher.Constraint("Coincident", 2, 2, 3, 1),
    Sketcher.Constraint("Coincident", 3, 2, 0, 1),
    Sketcher.Constraint("Vertical", 0),
    Sketcher.Constraint("Horizontal", 1),
    Sketcher.Constraint("Vertical", 2),
    Sketcher.Constraint("Horizontal", 3),
    Sketcher.Constraint("PointOnObject", 0, 2, -2),
    Sketcher.Constraint("DistanceY", 0, 2, 0, 1, Q("15 mm")),
    Sketcher.Constraint("DistanceX", 1, 1, 1, 2, Q("7.5 mm")),
    Sketcher.Constraint("DistanceY", -1, 1, 0, 2, Q("30 mm")),
])
pad19 = body25.newObject("PartDesign::Pad", "Pad018")
pad19.Profile = sketch19
pad19.Length = 14
body26 = doc.addObject("PartDesign::Body", "Body025")

sketch20 = body26.newObject("Sketcher::SketchObject", "Sketch019")
sketch20.AttachmentSupport = (doc.getObject("XY_Plane025"), [""])
sketch20.MapMode = "FlatFace"
sketch20.AttachmentOffset = App.Placement(Vector(0, 0, -10), App.Rotation())
sketch20.addGeometry([
    Part.LineSegment(Vector(0, 45, 0), Vector(0, -20, 0)),
    Part.LineSegment(Vector(0, -20, 0), Vector(8, -20, 0)),
    Part.LineSegment(Vector(8, -20, 0), Vector(8, 45, 0)),
    Part.LineSegment(Vector(8, 45, 0), Vector(0, 45, 0)),
], False)
sketch20.addConstraint([
    Sketcher.Constraint("Coincident", 0, 2, 1, 1),
    Sketcher.Constraint("Coincident", 1, 2, 2, 1),
    Sketcher.Constraint("Coincident", 2, 2, 3, 1),
    Sketcher.Constraint("Coincident", 3, 2, 0, 1),
    Sketcher.Constraint("Vertical", 0),
    Sketcher.Constraint("Horizontal", 1),
    Sketcher.Constraint("Vertical", 2),
    Sketcher.Constraint("Horizontal", 3),
    Sketcher.Constraint("PointOnObject", 0, 2, -2),
    Sketcher.Constraint("DistanceY", 0, 2, 0, 1, Q("65 mm")),
    Sketcher.Constraint("DistanceX", 1, 1, 1, 2, Q("7.5 mm")),
    Sketcher.Constraint("DistanceY", 0, 2, -1, 1, Q("20 mm")),
])
pad20 = body26.newObject("PartDesign::Pad", "Pad019")
pad20.Profile = sketch20
pad20.Length = 10
doc.recompute()

boolean18 = body26.newObject("PartDesign::Boolean", "Boolean017")
boolean18.Type = "Fuse"
boolean18.addObjects([body25])
doc.recompute()

boolean19 = body26.newObject("PartDesign::Boolean", "Boolean018")
boolean19.Type = "Cut"
boolean19.addObjects([body24])
body27 = doc.addObject("PartDesign::Body", "Body026")

sketch21 = body27.newObject("Sketcher::SketchObject", "Sketch020")
sketch21.AttachmentSupport = (doc.getObject("XY_Plane026"), [""])
sketch21.MapMode = "FlatFace"
sketch21.AttachmentOffset = App.Placement(Vector(0, 0, -10), App.Rotation())
sketch21.addGeometry([
    Part.LineSegment(Vector(8, 15, 0), Vector(8, -20, 0)),
    Part.LineSegment(Vector(8, -20, 0), Vector(20, -20, 0)),
    Part.LineSegment(Vector(20, -20, 0), Vector(20, 15, 0)),
    Part.LineSegment(Vector(20, 15, 0), Vector(8, 15, 0)),
], False)
sketch21.addConstraint([
    Sketcher.Constraint("Coincident", 0, 2, 1, 1),
    Sketcher.Constraint("Coincident", 1, 2, 2, 1),
    Sketcher.Constraint("Coincident", 2, 2, 3, 1),
    Sketcher.Constraint("Coincident", 3, 2, 0, 1),
    Sketcher.Constraint("Vertical", 0),
    Sketcher.Constraint("Horizontal", 1),
    Sketcher.Constraint("Vertical", 2),
    Sketcher.Constraint("Horizontal", 3),
    Sketcher.Constraint("DistanceY", 0, 2, 0, 1, Q("35 mm")),
    Sketcher.Constraint("DistanceX", 1, 1, 1, 2, Q("12.5 mm")),
    Sketcher.Constraint("DistanceY", 0, 2, -1, 1, Q("20 mm")),
    Sketcher.Constraint("DistanceX", -1, 1, 1, 2, Q("20 mm")),
])
pad21 = body27.newObject("PartDesign::Pad", "Pad020")
pad21.Profile = sketch21
pad21.Length = 10
doc.recompute()

boolean20 = body27.newObject("PartDesign::Boolean", "Boolean019")
boolean20.Type = "Fuse"
boolean20.addObjects([body23])
doc.recompute()

boolean21 = body27.newObject("PartDesign::Boolean", "Boolean020")
boolean21.Type = "Fuse"
boolean21.addObjects([body26])
doc.recompute()

boolean22 = body27.newObject("PartDesign::Boolean", "Boolean021")
boolean22.Type = "Cut"
boolean22.addObjects([body19])
doc.recompute()

boolean23 = body27.newObject("PartDesign::Boolean", "Boolean022")
boolean23.Type = "Cut"
boolean23.addObjects([body17])
doc.recompute()

boolean24 = body27.newObject("PartDesign::Boolean", "Boolean023")
boolean24.Type = "Cut"
boolean24.addObjects([body15])
doc.recompute()

boolean25 = body27.newObject("PartDesign::Boolean", "Boolean024")
boolean25.Type = "Fuse"
boolean25.addObjects([body13])
doc.recompute()

chamfer2 = body27.newObject("PartDesign::Chamfer", "Chamfer001")
chamfer2.Base = (boolean25, edges_at(boolean25, [
    (10, 7.8, 0),
    (10, 7.8, 0),
    (10, 12.2, 0),
    (10, 12.2, 0),
]))
chamfer2.Size = 1.79
doc.recompute()

chamfer3 = body27.newObject("PartDesign::Chamfer", "Chamfer002")
chamfer3.Base = (chamfer2, edges_at(chamfer2, [(7.5, 15, -5)]))
chamfer3.Size = 12.49
doc.recompute()

fillet2 = body27.newObject("PartDesign::Fillet", "Fillet001")
fillet2.Base = (chamfer3, edges_at(chamfer3, [
    (3.75, 30, 13.5),
    (3.75, 45, -10),
    (3.75, 45, 13.5),
    (10, -20, 16.464),
]))
fillet2.Radius = 5

doc.recompute()
